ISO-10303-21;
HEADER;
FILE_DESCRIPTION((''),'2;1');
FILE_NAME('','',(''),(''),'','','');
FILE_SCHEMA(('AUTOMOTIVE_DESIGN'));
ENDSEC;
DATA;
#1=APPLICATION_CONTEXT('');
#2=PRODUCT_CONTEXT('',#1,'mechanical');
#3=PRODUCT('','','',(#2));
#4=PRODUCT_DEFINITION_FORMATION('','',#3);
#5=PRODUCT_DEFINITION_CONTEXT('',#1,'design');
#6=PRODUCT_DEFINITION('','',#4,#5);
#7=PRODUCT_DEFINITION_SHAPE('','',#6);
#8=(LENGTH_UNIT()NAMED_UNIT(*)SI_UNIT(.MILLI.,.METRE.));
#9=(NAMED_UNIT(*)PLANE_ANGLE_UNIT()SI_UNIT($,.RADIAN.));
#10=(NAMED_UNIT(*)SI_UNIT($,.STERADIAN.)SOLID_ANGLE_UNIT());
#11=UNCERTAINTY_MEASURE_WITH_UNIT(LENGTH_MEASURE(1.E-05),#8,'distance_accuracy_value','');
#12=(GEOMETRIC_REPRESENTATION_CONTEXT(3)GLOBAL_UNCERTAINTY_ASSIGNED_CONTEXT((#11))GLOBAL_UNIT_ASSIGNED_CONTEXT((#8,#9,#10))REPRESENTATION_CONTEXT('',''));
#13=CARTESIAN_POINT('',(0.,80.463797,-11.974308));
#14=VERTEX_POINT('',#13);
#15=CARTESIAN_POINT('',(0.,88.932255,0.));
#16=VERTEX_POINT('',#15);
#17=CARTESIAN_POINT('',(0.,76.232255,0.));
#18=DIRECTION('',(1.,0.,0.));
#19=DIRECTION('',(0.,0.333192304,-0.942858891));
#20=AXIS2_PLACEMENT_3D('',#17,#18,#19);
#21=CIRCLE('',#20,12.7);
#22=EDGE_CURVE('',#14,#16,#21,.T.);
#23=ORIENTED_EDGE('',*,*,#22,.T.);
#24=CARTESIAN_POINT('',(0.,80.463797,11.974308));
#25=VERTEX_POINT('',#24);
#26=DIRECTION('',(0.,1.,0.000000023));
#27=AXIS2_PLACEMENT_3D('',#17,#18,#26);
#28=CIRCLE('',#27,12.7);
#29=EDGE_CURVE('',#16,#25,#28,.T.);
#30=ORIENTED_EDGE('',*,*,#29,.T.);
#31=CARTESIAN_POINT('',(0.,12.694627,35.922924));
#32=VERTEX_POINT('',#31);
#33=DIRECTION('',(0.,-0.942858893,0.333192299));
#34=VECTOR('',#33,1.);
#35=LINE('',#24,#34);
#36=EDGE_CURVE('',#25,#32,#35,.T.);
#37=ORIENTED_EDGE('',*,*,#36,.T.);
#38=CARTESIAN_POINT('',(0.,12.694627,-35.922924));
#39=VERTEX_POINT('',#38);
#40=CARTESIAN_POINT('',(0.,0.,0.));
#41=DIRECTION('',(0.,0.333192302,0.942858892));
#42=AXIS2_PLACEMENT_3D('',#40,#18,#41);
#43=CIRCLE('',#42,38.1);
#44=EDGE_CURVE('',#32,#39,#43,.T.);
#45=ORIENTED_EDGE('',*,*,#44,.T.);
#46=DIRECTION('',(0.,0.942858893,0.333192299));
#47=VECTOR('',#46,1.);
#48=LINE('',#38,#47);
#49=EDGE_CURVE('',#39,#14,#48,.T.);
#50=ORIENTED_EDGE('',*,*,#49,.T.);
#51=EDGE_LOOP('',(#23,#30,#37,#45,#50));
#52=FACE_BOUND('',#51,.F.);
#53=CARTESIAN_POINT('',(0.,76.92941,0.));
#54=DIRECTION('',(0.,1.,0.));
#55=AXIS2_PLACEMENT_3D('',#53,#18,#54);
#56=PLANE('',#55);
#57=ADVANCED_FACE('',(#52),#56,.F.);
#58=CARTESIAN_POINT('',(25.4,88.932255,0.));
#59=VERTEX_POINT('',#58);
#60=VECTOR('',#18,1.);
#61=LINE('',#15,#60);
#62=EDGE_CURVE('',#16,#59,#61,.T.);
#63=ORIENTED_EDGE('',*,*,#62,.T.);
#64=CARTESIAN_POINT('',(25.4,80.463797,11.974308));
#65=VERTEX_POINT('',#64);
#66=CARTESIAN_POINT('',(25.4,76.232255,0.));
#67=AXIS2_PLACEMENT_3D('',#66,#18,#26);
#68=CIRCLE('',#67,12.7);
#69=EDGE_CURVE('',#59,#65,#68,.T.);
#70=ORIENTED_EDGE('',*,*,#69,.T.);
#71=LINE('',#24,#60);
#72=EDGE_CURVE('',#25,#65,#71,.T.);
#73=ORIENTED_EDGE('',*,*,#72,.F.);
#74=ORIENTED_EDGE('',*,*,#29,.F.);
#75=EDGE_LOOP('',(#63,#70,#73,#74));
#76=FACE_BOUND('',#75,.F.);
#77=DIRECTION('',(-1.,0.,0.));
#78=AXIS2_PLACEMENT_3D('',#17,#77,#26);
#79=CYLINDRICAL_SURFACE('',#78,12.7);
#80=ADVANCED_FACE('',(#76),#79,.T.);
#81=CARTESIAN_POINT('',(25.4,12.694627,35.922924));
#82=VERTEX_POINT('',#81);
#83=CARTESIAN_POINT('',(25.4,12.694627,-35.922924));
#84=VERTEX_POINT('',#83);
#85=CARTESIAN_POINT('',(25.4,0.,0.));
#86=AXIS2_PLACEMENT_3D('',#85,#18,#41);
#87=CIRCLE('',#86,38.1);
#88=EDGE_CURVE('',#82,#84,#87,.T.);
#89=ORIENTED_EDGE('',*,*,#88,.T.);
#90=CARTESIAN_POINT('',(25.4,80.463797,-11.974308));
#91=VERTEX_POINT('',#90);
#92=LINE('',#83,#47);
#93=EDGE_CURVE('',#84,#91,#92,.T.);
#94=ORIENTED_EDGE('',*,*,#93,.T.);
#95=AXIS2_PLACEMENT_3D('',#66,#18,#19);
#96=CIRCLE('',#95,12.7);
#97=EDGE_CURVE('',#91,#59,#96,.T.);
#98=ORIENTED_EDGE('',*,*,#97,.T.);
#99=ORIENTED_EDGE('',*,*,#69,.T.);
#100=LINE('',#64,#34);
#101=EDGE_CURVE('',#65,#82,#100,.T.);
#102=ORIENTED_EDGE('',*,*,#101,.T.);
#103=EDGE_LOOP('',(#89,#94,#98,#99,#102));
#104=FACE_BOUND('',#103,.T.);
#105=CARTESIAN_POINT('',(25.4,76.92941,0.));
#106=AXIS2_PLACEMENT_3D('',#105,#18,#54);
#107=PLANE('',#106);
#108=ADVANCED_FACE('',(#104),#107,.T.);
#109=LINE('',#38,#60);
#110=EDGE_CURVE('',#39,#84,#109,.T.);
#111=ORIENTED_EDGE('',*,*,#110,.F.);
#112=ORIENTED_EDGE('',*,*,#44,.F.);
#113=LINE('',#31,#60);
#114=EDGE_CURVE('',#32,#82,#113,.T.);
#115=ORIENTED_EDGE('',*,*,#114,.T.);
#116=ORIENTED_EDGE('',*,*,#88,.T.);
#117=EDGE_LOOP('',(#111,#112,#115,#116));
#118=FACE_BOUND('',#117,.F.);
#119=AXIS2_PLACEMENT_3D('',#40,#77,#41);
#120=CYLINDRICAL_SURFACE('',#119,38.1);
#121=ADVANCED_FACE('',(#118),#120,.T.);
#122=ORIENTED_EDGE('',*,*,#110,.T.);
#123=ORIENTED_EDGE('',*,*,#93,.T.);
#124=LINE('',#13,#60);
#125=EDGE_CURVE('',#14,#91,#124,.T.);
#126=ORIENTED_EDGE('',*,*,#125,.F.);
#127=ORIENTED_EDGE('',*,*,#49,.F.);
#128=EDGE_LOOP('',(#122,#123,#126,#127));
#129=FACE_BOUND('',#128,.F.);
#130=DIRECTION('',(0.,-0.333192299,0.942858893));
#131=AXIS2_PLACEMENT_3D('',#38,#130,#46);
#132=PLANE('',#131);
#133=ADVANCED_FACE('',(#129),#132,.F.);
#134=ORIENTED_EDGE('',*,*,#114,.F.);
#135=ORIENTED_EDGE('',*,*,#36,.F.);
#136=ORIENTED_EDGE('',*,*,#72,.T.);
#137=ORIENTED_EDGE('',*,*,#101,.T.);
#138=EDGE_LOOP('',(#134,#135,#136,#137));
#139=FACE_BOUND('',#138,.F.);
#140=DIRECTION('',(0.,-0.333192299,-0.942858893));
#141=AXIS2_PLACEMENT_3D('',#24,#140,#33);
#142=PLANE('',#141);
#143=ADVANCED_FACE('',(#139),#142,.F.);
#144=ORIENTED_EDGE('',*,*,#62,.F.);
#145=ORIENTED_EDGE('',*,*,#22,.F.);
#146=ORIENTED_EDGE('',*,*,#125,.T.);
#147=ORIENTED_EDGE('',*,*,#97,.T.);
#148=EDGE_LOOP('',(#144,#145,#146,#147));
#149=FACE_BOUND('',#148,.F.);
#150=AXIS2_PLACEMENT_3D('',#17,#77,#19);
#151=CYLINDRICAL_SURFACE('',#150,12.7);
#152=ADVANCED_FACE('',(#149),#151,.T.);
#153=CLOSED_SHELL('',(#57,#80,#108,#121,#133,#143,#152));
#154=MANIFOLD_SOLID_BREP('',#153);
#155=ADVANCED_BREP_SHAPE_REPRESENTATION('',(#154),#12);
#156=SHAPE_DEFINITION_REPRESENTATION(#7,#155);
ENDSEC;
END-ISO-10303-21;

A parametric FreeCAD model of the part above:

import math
import FreeCAD as App
import Part
import Sketcher
Q = App.Units.Quantity

doc = App.newDocument("Part")
params = doc.addObject("Spreadsheet::Sheet", "Params")
for row, (alias, value) in enumerate([
    ("sketch1_radius", "0.5 in"),
    ("sketch1_radius2", "1.5 in"),
    ("pad1_length", "1 in"),
], start=1):
    params.set(f"A{row}", alias)
    params.set(f"B{row}", "=" + value)
    params.setAlias(f"B{row}", alias)

body = doc.addObject("PartDesign::Body", "Body")

sketch1 = body.newObject("Sketcher::SketchObject", "Sketch")
sketch1.AttachmentSupport = (doc.getObject("YZ_Plane"), [""])
sketch1.MapMode = "FlatFace"
sketch1.addGeometry(Part.ArcOfCircle(Part.Circle(App.Vector(76, 0, 0), App.Vector(0, 0, 1), 13), math.radians(0), math.radians(71)), False)
sketch1.addGeometry(Part.LineSegment(App.Vector(80, 12, 0), App.Vector(13, 36, 0)), False)
sketch1.addGeometry(Part.ArcOfCircle(Part.Circle(App.Vector(0, 0, 0), App.Vector(0, 0, 1), 38), math.radians(71), math.radians(289)), False)
sketch1.addGeometry(Part.LineSegment(App.Vector(13, -36, 0), App.Vector(80, -12, 0)), False)
sketch1.addGeometry(Part.ArcOfCircle(Part.Circle(App.Vector(76, 0, 0), App.Vector(0, 0, 1), 13), math.radians(-71), math.radians(0)), False)
sketch1.addConstraint(Sketcher.Constraint("Tangent", 0, 2, 1, 1))
sketch1.addConstraint(Sketcher.Constraint("Tangent", 1, 2, 2, 1))
sketch1.addConstraint(Sketcher.Constraint("Tangent", 2, 2, 3, 1))
sketch1.addConstraint(Sketcher.Constraint("Tangent", 3, 2, 4, 1))
sketch1.addConstraint(Sketcher.Constraint("Tangent", 4, 2, 0, 1))
sketch1.addConstraint(Sketcher.Constraint("Coincident", 2, 3, -1, 1))
sketch1.addConstraint(Sketcher.Constraint("Equal", 0, 4))
sketch1.addConstraint(Sketcher.Constraint("PointOnObject", 0, 3, -1))
sketch1.addConstraint(Sketcher.Constraint("PointOnObject", 4, 2, -1))
sketch1.addConstraint(Sketcher.Constraint("Radius", 0, Q("0.5 in")))
sketch1.addConstraint(Sketcher.Constraint("Radius", 2, Q("1.5 in")))
sketch1.addConstraint(Sketcher.Constraint("Distance", 1, 71.876259))
sketch1.setExpression("Constraints[9]", "Params.sketch1_radius")
sketch1.setExpression("Constraints[10]", "Params.sketch1_radius2")
pad1 = body.newObject("PartDesign::Pad", "Pad")
pad1.Profile = sketch1
pad1.setExpression("Length", "Params.pad1_length")

doc.recompute()
